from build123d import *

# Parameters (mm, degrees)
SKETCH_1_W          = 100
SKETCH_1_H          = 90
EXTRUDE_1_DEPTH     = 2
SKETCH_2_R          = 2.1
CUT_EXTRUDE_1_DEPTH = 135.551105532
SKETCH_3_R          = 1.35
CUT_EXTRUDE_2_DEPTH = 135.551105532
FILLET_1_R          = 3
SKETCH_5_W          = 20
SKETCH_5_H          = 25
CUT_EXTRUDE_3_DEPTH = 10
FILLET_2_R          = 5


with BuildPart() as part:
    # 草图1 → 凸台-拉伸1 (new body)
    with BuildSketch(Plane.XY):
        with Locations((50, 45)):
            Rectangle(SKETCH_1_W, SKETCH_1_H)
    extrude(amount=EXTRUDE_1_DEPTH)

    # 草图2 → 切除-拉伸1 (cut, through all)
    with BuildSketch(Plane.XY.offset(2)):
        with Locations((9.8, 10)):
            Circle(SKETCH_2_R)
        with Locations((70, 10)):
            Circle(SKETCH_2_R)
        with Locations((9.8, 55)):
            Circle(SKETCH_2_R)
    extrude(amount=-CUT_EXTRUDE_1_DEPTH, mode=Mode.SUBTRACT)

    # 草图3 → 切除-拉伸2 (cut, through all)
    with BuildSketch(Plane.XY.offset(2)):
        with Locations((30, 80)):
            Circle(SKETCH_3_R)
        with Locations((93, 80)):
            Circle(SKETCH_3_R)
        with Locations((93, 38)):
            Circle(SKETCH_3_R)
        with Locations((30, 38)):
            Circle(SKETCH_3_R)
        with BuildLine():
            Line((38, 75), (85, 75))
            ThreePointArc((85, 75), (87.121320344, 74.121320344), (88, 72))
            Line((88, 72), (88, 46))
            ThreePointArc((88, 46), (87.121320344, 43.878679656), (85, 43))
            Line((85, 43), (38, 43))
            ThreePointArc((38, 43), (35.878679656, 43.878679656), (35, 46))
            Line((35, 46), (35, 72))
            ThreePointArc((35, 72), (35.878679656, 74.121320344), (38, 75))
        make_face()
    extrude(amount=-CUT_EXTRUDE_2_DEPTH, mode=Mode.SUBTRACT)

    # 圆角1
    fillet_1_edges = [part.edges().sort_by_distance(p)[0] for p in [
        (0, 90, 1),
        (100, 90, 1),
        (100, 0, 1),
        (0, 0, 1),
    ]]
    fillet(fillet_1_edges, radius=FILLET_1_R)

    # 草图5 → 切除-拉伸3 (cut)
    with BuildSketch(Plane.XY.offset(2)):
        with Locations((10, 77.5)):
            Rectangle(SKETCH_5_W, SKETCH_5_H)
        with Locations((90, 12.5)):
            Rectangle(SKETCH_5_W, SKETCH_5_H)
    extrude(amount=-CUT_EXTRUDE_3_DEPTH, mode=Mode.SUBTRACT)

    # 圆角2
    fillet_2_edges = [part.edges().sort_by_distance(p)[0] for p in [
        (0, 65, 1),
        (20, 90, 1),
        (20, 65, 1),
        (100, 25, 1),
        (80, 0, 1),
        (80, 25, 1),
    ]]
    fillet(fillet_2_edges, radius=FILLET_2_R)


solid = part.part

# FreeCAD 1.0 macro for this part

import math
import FreeCAD as App
import Part
import Sketcher
Q = App.Units.Quantity


def edges_at(feature, points):
    """Names of the edges that pass closest to the given points."""
    edges = feature.Shape.Edges
    near = lambda p: min(range(len(edges)), key=lambda i: edges[i].distToShape(Part.Vertex(*p))[0])
    return sorted({f"Edge{near(p) + 1}" for p in points})

doc = App.newDocument("Part")
params = doc.addObject("Spreadsheet::Sheet", "Params")
for row, (alias, value) in enumerate([
    ("sketch1_width", "100 mm"),
    ("sketch1_height", "90 mm"),
    ("pad1_length", "2 mm"),
    ("sketch2_diameter", "4.2 mm"),
    ("sketch3_radius", "3 mm"),
    ("sketch3_diameter", "2.7 mm"),
    ("sketch3_width", "47 mm"),
    ("sketch3_height", "26 mm"),
    ("fillet_radius", "3 mm"),
    ("sketch4_width", "20 mm"),
    ("sketch4_height", "25 mm"),
    ("pocket3_length", "10 mm"),
    ("fillet2_radius", "5 mm"),
], start=1):
    params.set(f"A{row}", alias)
    params.set(f"B{row}", "=" + value)
    params.setAlias(f"B{row}", alias)

body = doc.addObject("PartDesign::Body", "Body")

# Sketch on XY plane
sketch1 = doc.addObject("Sketcher::SketchObject", "Sketch")
body.addObject(sketch1)
sketch1.AttachmentSupport = (doc.XY_Plane, [""])
sketch1.MapMode = "FlatFace"
sketch1.addGeometry(Part.LineSegment(App.Vector(0, 90, 0), App.Vector(0, 0, 0)), False)
sketch1.addGeometry(Part.LineSegment(App.Vector(0, 0, 0), App.Vector(100, 0, 0)), False)
sketch1.addGeometry(Part.LineSegment(App.Vector(100, 0, 0), App.Vector(100, 90, 0)), False)
sketch1.addGeometry(Part.LineSegment(App.Vector(100, 90, 0), App.Vector(0, 90, 0)), False)
sketch1.addConstraint(Sketcher.Constraint("Coincident", 0, 2, 1, 1))
sketch1.addConstraint(Sketcher.Constraint("Coincident", 1, 2, 2, 1))
sketch1.addConstraint(Sketcher.Constraint("Coincident", 2, 2, 3, 1))
sketch1.addConstraint(Sketcher.Constraint("Coincident", 3, 2, 0, 1))
sketch1.addConstraint(Sketcher.Constraint("Vertical", 0))
sketch1.addConstraint(Sketcher.Constraint("Horizontal", 1))
sketch1.addConstraint(Sketcher.Constraint("Vertical", 2))
sketch1.addConstraint(Sketcher.Constraint("Horizontal", 3))
sketch1.addConstraint(Sketcher.Constraint("Coincident", 0, 2, -1, 1))
sketch1.addConstraint(Sketcher.Constraint("DistanceX", 1, 1, 1, 2, Q("100 mm")))
sketch1.addConstraint(Sketcher.Constraint("DistanceY", 0, 2, 0, 1, Q("90 mm")))
sketch1.setExpression("Constraints[9]", "Params.sketch1_width")
sketch1.setExpression("Constraints[10]", "Params.sketch1_height")
pad1 = doc.addObject("PartDesign::Pad", "Pad")
body.addObject(pad1)
pad1.Profile = sketch1
pad1.setExpression("Length", "Params.pad1_length")

# Sketch on XY plane
sketch2 = doc.addObject("Sketcher::SketchObject", "Sketch001")
body.addObject(sketch2)
sketch2.AttachmentSupport = (doc.XY_Plane, [""])
sketch2.MapMode = "FlatFace"
sketch2.AttachmentOffset = App.Placement(App.Vector(0, 0, 2), App.Rotation())
sketch2.addGeometry(Part.Circle(App.Vector(9.8, 10, 0), App.Vector(0, 0, 1), 2.1), False)
sketch2.addGeometry(Part.Circle(App.Vector(70, 10, 0), App.Vector(0, 0, 1), 2.1), False)
sketch2.addGeometry(Part.Circle(App.Vector(9.8, 55, 0), App.Vector(0, 0, 1), 2.1), False)
sketch2.addConstraint(Sketcher.Constraint("Equal", 0, 1))
sketch2.addConstraint(Sketcher.Constraint("Equal", 1, 2))
sketch2.addConstraint(Sketcher.Constraint("Horizontal", 0, 3, 1, 3))
sketch2.addConstraint(Sketcher.Constraint("Vertical", 0, 3, 2, 3))
sketch2.addConstraint(Sketcher.Constraint("Diameter", 0, Q("4.2 mm")))
sketch2.addConstraint(Sketcher.Constraint("DistanceY", -1, 1, 0, 3, Q("10 mm")))
sketch2.addConstraint(Sketcher.Constraint("DistanceX", -1, 1, 1, 3, Q("70 mm")))
sketch2.addConstraint(Sketcher.Constraint("DistanceY", -1, 1, 2, 3, Q("55 mm")))
sketch2.addConstraint(Sketcher.Constraint("DistanceX", -1, 1, 0, 3, Q("9.8 mm")))
sketch2.setExpression("Constraints[4]", "Params.sketch2_diameter")
pocket1 = doc.addObject("PartDesign::Pocket", "Pocket")
body.addObject(pocket1)
pocket1.Profile = sketch2
pocket1.Type = "ThroughAll"

# Sketch on XY plane
sketch3 = doc.addObject("Sketcher::SketchObject", "Sketch002")
body.addObject(sketch3)
sketch3.AttachmentSupport = (doc.XY_Plane, [""])
sketch3.MapMode = "FlatFace"
sketch3.AttachmentOffset = App.Placement(App.Vector(0, 0, 2), App.Rotation())
sketch3.addGeometry(Part.Circle(App.Vector(30, 80, 0), App.Vector(0, 0, 1), 1.4), False)
sketch3.addGeometry(Part.Circle(App.Vector(93, 80, 0), App.Vector(0, 0, 1), 1.4), False)
sketch3.addGeometry(Part.Circle(App.Vector(93, 38, 0), App.Vector(0, 0, 1), 1.4), False)
sketch3.addGeometry(Part.Circle(App.Vector(30, 38, 0), App.Vector(0, 0, 1), 1.4), False)
sketch3.addGeometry(Part.LineSegment(App.Vector(85, 75, 0), App.Vector(38, 75, 0)), False)
sketch3.addGeometry(Part.ArcOfCircle(Part.Circle(App.Vector(38, 72, 0), App.Vector(0, 0, 1), 3), math.radians(90), math.radians(180)), False)
sketch3.addGeometry(Part.LineSegment(App.Vector(35, 72, 0), App.Vector(35, 46, 0)), False)
sketch3.addGeometry(Part.ArcOfCircle(Part.Circle(App.Vector(38, 46, 0), App.Vector(0, 0, 1), 3), math.radians(180), math.radians(270)), False)
sketch3.addGeometry(Part.LineSegment(App.Vector(38, 43, 0), App.Vector(85, 43, 0)), False)
sketch3.addGeometry(Part.ArcOfCircle(Part.Circle(App.Vector(85, 46, 0), App.Vector(0, 0, 1), 3), math.radians(-90), math.radians(0)), False)
sketch3.addGeometry(Part.LineSegment(App.Vector(88, 46, 0), App.Vector(88, 72, 0)), False)
sketch3.addGeometry(Part.ArcOfCircle(Part.Circle(App.Vector(85, 72, 0), App.Vector(0, 0, 1), 3), math.radians(0), math.radians(90)), False)
sketch3.addConstraint(Sketcher.Constraint("Tangent", 4, 2, 5, 1))
sketch3.addConstraint(Sketcher.Constraint("Tangent", 5, 2, 6, 1))
sketch3.addConstraint(Sketcher.Constraint("Tangent", 6, 2, 7, 1))
sketch3.addConstraint(Sketcher.Constraint("Tangent", 7, 2, 8, 1))
sketch3.addConstraint(Sketcher.Constraint("Tangent", 8, 2, 9, 1))
sketch3.addConstraint(Sketcher.Constraint("Tangent", 9, 2, 10, 1))
sketch3.addConstraint(Sketcher.Constraint("Tangent", 10, 2, 11, 1))
sketch3.addConstraint(Sketcher.Constraint("Tangent", 11, 2, 4, 1))
sketch3.addConstraint(Sketcher.Constraint("Horizontal", 4))
sketch3.addConstraint(Sketcher.Constraint("Vertical", 6))
sketch3.addConstraint(Sketcher.Constraint("Horizontal", 8))
sketch3.addConstraint(Sketcher.Constraint("Vertical", 10))
sketch3.addConstraint(Sketcher.Constraint("Equal", 0, 1))
sketch3.addConstraint(Sketcher.Constraint("Equal", 1, 2))
sketch3.addConstraint(Sketcher.Constraint("Equal", 2, 3))
sketch3.addConstraint(Sketcher.Constraint("Equal", 5, 7))
sketch3.addConstraint(Sketcher.Constraint("Equal", 7, 9))
sketch3.addConstraint(Sketcher.Constraint("Equal", 9, 11))
sketch3.addConstraint(Sketcher.Constraint("Horizontal", 0, 3, 1, 3))
sketch3.addConstraint(Sketcher.Constraint("Horizontal", 2, 3, 3, 3))
sketch3.addConstraint(Sketcher.Constraint("Vertical", 1, 3, 2, 3))
sketch3.addConstraint(Sketcher.Constraint("Vertical", 0, 3, 3, 3))
sketch3.addConstraint(Sketcher.Constraint("Radius", 5, Q("3 mm")))
sketch3.addConstraint(Sketcher.Constraint("Diameter", 0, Q("2.7 mm")))
sketch3.addConstraint(Sketcher.Constraint("DistanceX", 4, 2, 4, 1, Q("47 mm")))
sketch3.addConstraint(Sketcher.Constraint("DistanceY", 6, 2, 6, 1, Q("26 mm")))
sketch3.addConstraint(Sketcher.Constraint("DistanceX", -1, 1, 0, 3, Q("30 mm")))
sketch3.addConstraint(Sketcher.Constraint("DistanceY", -1, 1, 0, 3, Q("80 mm")))
sketch3.addConstraint(Sketcher.Constraint("DistanceX", -1, 1, 1, 3, Q("93 mm")))
sketch3.addConstraint(Sketcher.Constraint("DistanceY", -1, 1, 2, 3, Q("38 mm")))
sketch3.addConstraint(Sketcher.Constraint("DistanceX", -1, 1, 5, 3, Q("38 mm")))
sketch3.addConstraint(Sketcher.Constraint("DistanceY", -1, 1, 5, 3, Q("72 mm")))
sketch3.setExpression("Constraints[22]", "Params.sketch3_radius")
sketch3.setExpression("Constraints[23]", "Params.sketch3_diameter")
sketch3.setExpression("Constraints[24]", "Params.sketch3_width")
sketch3.setExpression("Constraints[25]", "Params.sketch3_height")
pocket2 = doc.addObject("PartDesign::Pocket", "Pocket001")
body.addObject(pocket2)
pocket2.Profile = sketch3
pocket2.Type = "ThroughAll"
doc.recompute()

fillet = doc.addObject("PartDesign::Fillet", "Fillet")
body.addObject(fillet)
fillet.Base = (pocket2, edges_at(pocket2, [
    (0, 90, 1),
    (100, 90, 1),
    (100, 0, 1),
    (0, 0, 1),
]))
fillet.setExpression("Radius", "Params.fillet_radius")

# Sketch on XY plane
sketch4 = doc.addObject("Sketcher::SketchObject", "Sketch003")
body.addObject(sketch4)
sketch4.AttachmentSupport = (doc.XY_Plane, [""])
sketch4.MapMode = "FlatFace"
sketch4.AttachmentOffset = App.Placement(App.Vector(0, 0, 2), App.Rotation())
sketch4.addGeometry(Part.LineSegment(App.Vector(0, 90, 0), App.Vector(0, 65, 0)), False)
sketch4.addGeometry(Part.LineSegment(App.Vector(0, 65, 0), App.Vector(20, 65, 0)), False)
sketch4.addGeometry(Part.LineSegment(App.Vector(20, 65, 0), App.Vector(20, 90, 0)), False)
sketch4.addGeometry(Part.LineSegment(App.Vector(20, 90, 0), App.Vector(0, 90, 0)), False)
sketch4.addGeometry(Part.LineSegment(App.Vector(80, 25, 0), App.Vector(80, 0, 0)), False)
sketch4.addGeometry(Part.LineSegment(App.Vector(80, 0, 0), App.Vector(100, 0, 0)), False)
sketch4.addGeometry(Part.LineSegment(App.Vector(100, 0, 0), App.Vector(100, 25, 0)), False)
sketch4.addGeometry(Part.LineSegment(App.Vector(100, 25, 0), App.Vector(80, 25, 0)), False)
sketch4.addConstraint(Sketcher.Constraint("Coincident", 0, 2, 1, 1))
sketch4.addConstraint(Sketcher.Constraint("Coincident", 1, 2, 2, 1))
sketch4.addConstraint(Sketcher.Constraint("Coincident", 2, 2, 3, 1))
sketch4.addConstraint(Sketcher.Constraint("Coincident", 3, 2, 0, 1))
sketch4.addConstraint(Sketcher.Constraint("Coincident", 4, 2, 5, 1))
sketch4.addConstraint(Sketcher.Constraint("Coincident", 5, 2, 6, 1))
sketch4.addConstraint(Sketcher.Constraint("Coincident", 6, 2, 7, 1))
sketch4.addConstraint(Sketcher.Constraint("Coincident", 7, 2, 4, 1))
sketch4.addConstraint(Sketcher.Constraint("Vertical", 0))
sketch4.addConstraint(Sketcher.Constraint("Horizontal", 1))
sketch4.addConstraint(Sketcher.Constraint("Vertical", 2))
sketch4.addConstraint(Sketcher.Constraint("Horizontal", 3))
sketch4.addConstraint(Sketcher.Constraint("Vertical", 4))
sketch4.addConstraint(Sketcher.Constraint("Horizontal", 5))
sketch4.addConstraint(Sketcher.Constraint("Vertical", 6))
sketch4.addConstraint(Sketcher.Constraint("Horizontal", 7))
sketch4.addConstraint(Sketcher.Constraint("PointOnObject", 0, 2, -2))
sketch4.addConstraint(Sketcher.Constraint("PointOnObject", 4, 2, -1))
sketch4.addConstraint(Sketcher.Constraint("Equal", 3, 5))
sketch4.addConstraint(Sketcher.Constraint("Equal", 2, 4))
sketch4.addConstraint(Sketcher.Constraint("DistanceX", 1, 1, 1, 2, Q("20 mm")))
sketch4.addConstraint(Sketcher.Constraint("DistanceY", 0, 2, 0, 1, Q("25 mm")))
sketch4.addConstraint(Sketcher.Constraint("DistanceY", -1, 1, 0, 2, Q("65 mm")))
sketch4.addConstraint(Sketcher.Constraint("DistanceX", -1, 1, 4, 2, Q("80 mm")))
sketch4.setExpression("Constraints[20]", "Params.sketch4_width")
sketch4.setExpression("Constraints[21]", "Params.sketch4_height")
pocket3 = doc.addObject("PartDesign::Pocket", "Pocket002")
body.addObject(pocket3)
pocket3.Profile = sketch4
pocket3.setExpression("Length", "Params.pocket3_length")
doc.recompute()

fillet2 = doc.addObject("PartDesign::Fillet", "Fillet001")
body.addObject(fillet2)
fillet2.Base = (pocket3, edges_at(pocket3, [
    (0, 65, 1),
    (20, 90, 1),
    (20, 65, 1),
    (100, 25, 1),
    (80, 0, 1),
    (80, 25, 1),
]))
fillet2.setExpression("Radius", "Params.fillet2_radius")

doc.recompute()
